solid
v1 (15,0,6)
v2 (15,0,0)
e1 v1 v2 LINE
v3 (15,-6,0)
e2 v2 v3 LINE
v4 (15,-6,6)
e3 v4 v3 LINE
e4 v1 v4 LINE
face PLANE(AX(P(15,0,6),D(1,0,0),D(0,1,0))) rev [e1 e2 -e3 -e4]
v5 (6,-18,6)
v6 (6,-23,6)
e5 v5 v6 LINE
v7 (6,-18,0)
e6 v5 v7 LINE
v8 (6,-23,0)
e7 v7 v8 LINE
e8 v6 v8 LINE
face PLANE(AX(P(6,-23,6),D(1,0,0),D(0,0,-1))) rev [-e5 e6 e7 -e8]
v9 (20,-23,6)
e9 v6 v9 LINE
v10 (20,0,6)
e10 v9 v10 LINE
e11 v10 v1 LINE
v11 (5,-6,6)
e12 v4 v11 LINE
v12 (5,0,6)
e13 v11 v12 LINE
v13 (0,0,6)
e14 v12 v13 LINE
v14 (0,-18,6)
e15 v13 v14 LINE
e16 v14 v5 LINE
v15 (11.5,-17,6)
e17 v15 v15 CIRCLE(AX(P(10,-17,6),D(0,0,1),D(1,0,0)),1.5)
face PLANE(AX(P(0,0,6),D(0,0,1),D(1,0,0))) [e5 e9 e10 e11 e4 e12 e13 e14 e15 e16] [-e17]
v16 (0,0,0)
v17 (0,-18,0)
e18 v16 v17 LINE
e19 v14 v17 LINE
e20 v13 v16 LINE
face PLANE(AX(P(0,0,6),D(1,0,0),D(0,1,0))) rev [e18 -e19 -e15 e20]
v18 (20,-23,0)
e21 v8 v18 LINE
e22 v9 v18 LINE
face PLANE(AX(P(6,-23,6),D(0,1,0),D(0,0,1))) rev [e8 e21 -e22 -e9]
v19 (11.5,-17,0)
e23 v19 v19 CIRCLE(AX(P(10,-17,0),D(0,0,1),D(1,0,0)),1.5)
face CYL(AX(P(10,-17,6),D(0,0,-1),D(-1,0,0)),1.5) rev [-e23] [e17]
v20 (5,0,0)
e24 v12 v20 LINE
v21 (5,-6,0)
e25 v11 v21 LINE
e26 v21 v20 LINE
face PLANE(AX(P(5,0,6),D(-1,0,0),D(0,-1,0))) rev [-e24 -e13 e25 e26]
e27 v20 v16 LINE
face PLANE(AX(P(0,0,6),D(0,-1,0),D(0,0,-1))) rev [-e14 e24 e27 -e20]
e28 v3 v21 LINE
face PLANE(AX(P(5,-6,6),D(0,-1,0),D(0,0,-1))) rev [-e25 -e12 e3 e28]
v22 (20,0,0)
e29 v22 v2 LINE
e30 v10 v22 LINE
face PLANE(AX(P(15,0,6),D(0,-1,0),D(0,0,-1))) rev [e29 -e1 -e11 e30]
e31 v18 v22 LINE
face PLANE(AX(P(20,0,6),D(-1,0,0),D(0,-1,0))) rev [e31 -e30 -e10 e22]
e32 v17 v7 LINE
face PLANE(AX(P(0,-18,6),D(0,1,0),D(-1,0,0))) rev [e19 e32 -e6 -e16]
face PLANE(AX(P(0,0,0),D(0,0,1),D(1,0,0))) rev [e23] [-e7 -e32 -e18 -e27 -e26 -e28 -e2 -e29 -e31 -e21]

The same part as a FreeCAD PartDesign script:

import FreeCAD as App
import Part
import Sketcher
from FreeCAD import Vector


def add_polygon(sketch, points):
    """Adds a closed chain of lines whose ends are joined by coincident constraints."""
    first, n = sketch.GeometryCount, len(points)
    for a, b in zip(points, points[1:] + points[:1]):
        sketch.addGeometry(Part.LineSegment(App.Vector(*a, 0), App.Vector(*b, 0)), False)
    for i in range(n):
        sketch.addConstraint(Sketcher.Constraint("Coincident", first + i, 2, first + (i + 1) % n, 1))

doc = App.newDocument("Part")
body = doc.addObject("PartDesign::Body", "Body")

sketch1 = body.newObject("Sketcher::SketchObject", "Sketch")
sketch1.AttachmentSupport = (doc.getObject("XY_Plane"), [""])
sketch1.MapMode = "FlatFace"
add_polygon(sketch1, [(20, 0), (15, 0), (15, -6), (5, -6), (5, 0), (0, 0), (0, -18), (6, -18), (6, -23), (20, -23)])
sketch1.addGeometry(Part.Circle(Vector(10, -17, 0), Vector(0, 0, 1), 1.5), False)
sketch1.addConstraint([
    Sketcher.Constraint("Horizontal", 0),
    Sketcher.Constraint("Vertical", 1),
    Sketcher.Constraint("Horizontal", 2),
    Sketcher.Constraint("Vertical", 3),
    Sketcher.Constraint("Horizontal", 4),
    Sketcher.Constraint("Vertical", 5),
    Sketcher.Constraint("Horizontal", 6),
    Sketcher.Constraint("Vertical", 7),
    Sketcher.Constraint("Horizontal", 8),
    Sketcher.Constraint("Vertical", 9),
    Sketcher.Constraint("Coincident", 4, 2, -1, 1),
    Sketcher.Constraint("PointOnObject", 0, 2, -1),
    Sketcher.Constraint("Equal", 0, 4),
    Sketcher.Constraint("Equal", 6, 1),
    Sketcher.Constraint("Equal", 4, 7),
    Sketcher.Constraint("Diameter", 10, 3.0),
    Sketcher.Constraint("DistanceX", 0, 2, 0, 1, 5.0),
    Sketcher.Constraint("DistanceX", 2, 2, 2, 1, 10.0),
    Sketcher.Constraint("DistanceX", 6, 1, 6, 2, 6.0),
    Sketcher.Constraint("DistanceY", 5, 2, 5, 1, 18.0),
    Sketcher.Constraint("DistanceX", -1, 1, 10, 3, 10.0),
    Sketcher.Constraint("DistanceY", 10, 3, -1, 1, 17.0),
])
pad1 = body.newObject("PartDesign::Pad", "Pad")
pad1.Profile = sketch1
pad1.Length = 6

doc.recompute()
